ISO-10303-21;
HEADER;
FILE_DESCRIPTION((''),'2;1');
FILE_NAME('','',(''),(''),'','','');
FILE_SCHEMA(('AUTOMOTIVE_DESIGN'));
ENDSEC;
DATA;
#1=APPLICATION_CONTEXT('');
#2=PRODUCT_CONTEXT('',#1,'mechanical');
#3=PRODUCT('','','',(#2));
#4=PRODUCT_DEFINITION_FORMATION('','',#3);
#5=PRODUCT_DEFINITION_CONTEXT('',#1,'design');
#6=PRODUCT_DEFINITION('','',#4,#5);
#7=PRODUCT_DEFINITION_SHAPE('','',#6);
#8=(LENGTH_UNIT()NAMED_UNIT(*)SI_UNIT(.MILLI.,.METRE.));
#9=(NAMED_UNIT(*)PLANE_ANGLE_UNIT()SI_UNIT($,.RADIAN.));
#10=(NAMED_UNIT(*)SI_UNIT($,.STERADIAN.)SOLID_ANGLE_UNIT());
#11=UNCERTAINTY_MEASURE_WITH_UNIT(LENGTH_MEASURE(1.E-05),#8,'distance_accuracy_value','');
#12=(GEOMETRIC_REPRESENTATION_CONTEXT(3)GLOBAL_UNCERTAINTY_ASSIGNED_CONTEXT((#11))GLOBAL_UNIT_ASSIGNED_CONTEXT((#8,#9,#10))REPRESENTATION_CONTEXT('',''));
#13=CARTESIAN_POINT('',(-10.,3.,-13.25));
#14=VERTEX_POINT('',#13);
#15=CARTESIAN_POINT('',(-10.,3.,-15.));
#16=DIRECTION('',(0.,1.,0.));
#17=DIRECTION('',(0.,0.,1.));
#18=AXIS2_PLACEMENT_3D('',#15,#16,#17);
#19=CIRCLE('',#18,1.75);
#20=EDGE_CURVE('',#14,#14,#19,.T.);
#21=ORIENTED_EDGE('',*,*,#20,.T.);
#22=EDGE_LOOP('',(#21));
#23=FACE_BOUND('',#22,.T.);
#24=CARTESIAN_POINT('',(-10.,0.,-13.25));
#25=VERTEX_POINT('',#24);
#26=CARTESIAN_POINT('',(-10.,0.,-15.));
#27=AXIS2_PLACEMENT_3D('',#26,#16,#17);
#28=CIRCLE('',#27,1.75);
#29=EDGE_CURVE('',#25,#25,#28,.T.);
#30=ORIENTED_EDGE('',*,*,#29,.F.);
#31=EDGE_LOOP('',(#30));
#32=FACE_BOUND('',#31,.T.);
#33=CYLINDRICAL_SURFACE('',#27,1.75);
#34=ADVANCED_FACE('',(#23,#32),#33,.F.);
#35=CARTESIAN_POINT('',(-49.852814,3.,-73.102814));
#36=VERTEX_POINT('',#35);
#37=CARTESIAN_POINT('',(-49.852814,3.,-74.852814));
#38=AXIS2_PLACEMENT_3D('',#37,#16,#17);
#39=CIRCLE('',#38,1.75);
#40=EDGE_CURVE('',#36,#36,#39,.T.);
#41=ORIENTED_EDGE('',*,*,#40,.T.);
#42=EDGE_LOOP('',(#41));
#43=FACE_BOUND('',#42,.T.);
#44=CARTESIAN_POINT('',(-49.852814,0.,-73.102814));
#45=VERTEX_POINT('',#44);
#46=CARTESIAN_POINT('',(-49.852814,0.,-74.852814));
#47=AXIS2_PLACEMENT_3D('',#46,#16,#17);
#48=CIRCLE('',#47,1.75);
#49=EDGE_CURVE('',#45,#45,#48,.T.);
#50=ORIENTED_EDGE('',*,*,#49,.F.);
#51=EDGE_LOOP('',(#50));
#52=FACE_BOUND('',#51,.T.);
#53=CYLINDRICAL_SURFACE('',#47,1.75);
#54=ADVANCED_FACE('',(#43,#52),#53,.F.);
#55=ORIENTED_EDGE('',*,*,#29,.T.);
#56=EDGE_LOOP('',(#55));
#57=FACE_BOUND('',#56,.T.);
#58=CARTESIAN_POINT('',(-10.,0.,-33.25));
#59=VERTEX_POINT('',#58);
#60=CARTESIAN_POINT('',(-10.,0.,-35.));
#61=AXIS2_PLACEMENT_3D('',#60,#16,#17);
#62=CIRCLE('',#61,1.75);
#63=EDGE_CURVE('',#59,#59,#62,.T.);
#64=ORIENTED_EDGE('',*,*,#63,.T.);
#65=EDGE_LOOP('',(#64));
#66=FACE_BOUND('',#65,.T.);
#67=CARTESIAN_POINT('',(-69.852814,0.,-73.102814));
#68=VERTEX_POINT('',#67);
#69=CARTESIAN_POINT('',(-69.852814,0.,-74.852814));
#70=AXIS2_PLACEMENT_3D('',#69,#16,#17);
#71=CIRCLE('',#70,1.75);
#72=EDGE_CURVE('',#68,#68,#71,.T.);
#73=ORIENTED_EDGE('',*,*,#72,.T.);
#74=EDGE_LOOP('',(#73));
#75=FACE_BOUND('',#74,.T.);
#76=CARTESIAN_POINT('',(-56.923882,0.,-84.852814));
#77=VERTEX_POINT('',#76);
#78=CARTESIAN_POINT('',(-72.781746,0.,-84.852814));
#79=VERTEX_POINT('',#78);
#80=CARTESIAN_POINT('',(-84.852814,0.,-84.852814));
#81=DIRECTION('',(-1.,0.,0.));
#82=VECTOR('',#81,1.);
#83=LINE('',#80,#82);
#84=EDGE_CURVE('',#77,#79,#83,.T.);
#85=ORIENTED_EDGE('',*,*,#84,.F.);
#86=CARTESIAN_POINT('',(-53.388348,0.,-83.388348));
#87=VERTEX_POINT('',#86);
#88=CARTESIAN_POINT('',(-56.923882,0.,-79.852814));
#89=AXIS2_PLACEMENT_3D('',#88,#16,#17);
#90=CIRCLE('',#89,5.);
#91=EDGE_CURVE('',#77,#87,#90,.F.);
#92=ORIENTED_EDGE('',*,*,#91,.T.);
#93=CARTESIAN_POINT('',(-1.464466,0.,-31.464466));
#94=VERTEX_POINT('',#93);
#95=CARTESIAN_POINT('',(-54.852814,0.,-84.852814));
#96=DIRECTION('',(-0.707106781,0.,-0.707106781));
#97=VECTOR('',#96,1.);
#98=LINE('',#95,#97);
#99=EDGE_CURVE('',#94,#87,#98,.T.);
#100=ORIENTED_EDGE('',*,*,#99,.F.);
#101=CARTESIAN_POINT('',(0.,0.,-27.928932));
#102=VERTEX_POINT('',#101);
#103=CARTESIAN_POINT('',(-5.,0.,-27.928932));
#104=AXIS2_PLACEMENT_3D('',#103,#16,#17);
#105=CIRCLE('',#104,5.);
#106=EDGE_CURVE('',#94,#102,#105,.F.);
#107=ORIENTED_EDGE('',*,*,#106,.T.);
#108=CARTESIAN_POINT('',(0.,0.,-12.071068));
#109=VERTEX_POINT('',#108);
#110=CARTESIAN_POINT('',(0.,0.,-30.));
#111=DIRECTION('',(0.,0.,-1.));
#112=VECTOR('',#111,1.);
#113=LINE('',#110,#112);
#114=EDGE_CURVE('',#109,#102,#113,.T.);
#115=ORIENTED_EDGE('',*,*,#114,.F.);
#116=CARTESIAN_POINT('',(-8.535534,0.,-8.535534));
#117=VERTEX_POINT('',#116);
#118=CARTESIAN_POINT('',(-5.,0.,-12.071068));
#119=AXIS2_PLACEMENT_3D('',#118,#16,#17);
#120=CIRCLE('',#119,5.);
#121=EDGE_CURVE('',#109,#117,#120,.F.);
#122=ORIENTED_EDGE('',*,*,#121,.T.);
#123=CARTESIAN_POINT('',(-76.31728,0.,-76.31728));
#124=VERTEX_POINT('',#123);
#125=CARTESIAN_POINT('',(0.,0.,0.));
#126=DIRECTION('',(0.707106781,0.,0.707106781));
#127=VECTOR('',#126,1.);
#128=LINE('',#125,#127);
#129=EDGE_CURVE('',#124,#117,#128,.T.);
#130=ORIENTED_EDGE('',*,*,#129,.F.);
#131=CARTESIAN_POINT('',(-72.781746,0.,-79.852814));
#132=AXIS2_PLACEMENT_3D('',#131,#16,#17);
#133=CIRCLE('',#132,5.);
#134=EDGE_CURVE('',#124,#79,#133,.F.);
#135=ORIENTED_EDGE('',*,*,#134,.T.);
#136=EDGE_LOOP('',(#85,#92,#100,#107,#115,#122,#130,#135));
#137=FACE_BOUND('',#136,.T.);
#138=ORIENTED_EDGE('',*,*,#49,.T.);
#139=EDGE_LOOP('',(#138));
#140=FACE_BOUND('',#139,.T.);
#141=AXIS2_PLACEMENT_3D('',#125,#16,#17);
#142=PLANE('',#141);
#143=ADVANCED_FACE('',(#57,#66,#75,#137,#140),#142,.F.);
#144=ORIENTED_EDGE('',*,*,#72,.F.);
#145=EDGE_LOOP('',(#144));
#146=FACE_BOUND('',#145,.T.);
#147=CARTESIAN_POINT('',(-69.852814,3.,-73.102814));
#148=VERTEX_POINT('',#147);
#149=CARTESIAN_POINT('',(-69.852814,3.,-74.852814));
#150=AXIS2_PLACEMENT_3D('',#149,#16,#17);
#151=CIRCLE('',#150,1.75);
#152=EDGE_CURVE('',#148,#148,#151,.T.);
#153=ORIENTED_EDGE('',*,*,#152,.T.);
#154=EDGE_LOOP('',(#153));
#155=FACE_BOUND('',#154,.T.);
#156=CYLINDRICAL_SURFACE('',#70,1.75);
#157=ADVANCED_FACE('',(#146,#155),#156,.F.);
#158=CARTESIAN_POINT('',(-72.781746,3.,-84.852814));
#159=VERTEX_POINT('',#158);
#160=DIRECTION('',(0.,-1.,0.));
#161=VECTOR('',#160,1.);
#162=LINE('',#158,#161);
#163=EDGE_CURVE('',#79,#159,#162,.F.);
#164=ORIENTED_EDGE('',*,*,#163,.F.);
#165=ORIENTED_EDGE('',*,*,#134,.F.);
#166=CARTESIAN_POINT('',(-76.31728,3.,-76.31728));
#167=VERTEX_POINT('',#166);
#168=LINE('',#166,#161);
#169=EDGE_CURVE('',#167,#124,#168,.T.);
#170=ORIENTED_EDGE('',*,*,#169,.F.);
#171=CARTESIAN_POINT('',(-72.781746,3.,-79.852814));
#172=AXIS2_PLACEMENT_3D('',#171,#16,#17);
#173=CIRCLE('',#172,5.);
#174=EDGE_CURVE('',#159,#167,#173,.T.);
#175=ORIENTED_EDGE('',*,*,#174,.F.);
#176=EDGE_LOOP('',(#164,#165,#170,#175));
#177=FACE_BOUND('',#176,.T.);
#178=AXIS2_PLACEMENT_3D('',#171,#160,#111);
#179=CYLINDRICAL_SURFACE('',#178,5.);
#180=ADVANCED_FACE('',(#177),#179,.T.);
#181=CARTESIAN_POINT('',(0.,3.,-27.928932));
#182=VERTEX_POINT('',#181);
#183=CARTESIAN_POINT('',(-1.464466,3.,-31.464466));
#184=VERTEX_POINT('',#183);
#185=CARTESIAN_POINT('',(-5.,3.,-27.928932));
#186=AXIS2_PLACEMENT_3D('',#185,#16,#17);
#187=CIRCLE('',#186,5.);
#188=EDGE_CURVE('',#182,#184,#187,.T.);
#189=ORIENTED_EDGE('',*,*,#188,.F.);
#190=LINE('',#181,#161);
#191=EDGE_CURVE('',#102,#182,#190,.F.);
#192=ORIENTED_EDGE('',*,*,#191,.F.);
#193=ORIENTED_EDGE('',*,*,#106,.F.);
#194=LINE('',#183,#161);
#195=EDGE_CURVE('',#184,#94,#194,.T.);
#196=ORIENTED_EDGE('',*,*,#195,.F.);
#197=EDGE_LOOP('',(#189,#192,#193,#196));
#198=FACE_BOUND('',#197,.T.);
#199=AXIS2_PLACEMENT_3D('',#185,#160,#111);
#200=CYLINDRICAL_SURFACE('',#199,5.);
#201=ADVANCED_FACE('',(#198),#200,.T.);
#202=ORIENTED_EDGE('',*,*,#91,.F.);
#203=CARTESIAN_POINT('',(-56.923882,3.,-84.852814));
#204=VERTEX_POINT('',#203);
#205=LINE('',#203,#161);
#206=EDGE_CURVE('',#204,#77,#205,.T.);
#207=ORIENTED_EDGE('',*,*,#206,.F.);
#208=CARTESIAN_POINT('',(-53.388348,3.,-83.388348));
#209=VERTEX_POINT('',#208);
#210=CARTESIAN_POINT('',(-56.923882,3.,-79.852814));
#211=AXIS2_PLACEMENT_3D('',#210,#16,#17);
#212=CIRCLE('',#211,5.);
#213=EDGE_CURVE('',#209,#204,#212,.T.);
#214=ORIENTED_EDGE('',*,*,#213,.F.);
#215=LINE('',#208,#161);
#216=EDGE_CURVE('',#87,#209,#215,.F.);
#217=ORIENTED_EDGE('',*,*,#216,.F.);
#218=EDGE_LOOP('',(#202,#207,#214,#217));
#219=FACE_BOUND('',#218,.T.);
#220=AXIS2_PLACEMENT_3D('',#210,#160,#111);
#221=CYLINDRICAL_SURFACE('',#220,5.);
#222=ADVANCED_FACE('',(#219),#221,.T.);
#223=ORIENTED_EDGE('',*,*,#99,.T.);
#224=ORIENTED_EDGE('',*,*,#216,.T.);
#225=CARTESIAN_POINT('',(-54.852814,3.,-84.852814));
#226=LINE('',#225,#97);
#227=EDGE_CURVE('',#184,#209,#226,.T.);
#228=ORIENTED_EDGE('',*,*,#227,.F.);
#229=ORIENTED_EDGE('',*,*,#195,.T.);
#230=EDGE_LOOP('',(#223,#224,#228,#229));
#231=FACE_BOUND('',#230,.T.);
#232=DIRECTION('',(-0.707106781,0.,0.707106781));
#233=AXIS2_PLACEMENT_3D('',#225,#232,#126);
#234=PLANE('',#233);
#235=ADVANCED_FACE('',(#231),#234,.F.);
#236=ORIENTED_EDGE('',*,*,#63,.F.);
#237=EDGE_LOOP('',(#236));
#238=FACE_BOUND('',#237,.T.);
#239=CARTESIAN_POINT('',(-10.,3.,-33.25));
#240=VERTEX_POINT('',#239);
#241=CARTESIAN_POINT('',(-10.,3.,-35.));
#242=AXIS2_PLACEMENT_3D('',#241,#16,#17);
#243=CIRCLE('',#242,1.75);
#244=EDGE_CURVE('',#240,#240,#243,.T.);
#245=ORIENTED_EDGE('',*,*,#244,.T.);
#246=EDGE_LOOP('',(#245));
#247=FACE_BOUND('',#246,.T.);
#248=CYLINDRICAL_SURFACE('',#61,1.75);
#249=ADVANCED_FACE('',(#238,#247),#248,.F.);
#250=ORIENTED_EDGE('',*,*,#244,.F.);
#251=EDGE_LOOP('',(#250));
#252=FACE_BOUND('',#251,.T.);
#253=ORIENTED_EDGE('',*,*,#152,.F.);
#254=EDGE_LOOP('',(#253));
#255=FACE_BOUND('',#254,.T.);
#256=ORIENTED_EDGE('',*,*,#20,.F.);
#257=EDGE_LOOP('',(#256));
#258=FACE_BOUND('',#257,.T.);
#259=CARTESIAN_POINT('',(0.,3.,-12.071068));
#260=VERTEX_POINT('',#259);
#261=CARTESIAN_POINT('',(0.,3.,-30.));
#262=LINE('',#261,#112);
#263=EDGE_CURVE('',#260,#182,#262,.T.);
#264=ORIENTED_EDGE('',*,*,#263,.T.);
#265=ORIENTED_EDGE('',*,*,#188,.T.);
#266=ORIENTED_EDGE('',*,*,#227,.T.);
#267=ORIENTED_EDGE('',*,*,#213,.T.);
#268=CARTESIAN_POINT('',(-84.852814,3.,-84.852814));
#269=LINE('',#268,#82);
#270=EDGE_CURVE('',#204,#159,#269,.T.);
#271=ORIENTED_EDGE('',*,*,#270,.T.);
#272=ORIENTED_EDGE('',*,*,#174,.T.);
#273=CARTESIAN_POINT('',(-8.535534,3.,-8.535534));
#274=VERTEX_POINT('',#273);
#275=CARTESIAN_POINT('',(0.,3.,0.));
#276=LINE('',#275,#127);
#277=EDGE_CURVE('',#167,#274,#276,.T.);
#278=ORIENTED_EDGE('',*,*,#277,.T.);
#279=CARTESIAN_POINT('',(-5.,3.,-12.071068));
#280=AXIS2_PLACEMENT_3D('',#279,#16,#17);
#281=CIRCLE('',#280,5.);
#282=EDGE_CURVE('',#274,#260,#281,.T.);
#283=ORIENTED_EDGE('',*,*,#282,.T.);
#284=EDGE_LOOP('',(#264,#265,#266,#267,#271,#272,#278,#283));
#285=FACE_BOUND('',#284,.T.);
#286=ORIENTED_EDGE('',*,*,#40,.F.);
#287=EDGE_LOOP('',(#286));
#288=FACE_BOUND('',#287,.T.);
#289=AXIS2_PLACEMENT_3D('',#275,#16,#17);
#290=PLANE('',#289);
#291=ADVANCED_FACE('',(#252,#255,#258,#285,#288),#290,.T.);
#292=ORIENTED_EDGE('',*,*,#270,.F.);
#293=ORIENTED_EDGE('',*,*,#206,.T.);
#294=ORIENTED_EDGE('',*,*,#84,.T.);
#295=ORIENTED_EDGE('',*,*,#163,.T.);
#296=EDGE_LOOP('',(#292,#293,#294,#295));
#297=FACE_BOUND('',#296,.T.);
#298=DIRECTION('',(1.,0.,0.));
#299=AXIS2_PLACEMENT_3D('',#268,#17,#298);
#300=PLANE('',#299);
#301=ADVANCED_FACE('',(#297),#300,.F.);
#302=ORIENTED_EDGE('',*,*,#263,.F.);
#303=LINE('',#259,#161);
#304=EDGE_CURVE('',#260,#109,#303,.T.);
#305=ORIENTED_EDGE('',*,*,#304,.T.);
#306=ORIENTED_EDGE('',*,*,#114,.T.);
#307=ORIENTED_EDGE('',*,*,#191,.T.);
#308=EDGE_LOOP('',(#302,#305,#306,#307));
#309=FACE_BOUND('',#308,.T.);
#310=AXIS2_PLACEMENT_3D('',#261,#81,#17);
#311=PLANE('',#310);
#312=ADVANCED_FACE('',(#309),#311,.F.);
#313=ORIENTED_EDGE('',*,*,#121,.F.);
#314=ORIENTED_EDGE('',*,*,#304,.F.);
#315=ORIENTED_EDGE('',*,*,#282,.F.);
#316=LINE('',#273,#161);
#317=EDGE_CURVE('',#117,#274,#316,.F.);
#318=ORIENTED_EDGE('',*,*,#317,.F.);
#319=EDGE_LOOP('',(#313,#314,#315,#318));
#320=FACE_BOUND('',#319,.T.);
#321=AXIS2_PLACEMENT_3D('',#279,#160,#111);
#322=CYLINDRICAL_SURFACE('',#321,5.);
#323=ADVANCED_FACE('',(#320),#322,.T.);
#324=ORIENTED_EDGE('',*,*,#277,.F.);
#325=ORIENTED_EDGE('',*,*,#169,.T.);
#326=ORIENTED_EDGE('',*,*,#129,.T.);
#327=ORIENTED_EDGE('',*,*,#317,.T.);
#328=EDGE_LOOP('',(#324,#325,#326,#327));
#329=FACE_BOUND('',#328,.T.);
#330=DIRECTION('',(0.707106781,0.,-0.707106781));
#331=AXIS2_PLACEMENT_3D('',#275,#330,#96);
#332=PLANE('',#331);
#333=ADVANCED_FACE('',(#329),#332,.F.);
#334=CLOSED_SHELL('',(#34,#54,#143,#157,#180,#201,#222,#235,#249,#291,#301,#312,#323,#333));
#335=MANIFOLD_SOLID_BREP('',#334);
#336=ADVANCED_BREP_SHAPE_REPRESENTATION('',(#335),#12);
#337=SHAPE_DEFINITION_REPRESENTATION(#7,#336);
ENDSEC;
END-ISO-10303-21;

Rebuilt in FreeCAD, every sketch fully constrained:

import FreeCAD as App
import Part
import Sketcher
from FreeCAD import Vector


def edges_at(feature, points):
    """Names of the edges that pass closest to the given points."""
    edges = feature.Shape.Edges
    near = lambda p: min(range(len(edges)), key=lambda i: edges[i].distToShape(Part.Vertex(*p))[0])
    return sorted({f"Edge{near(p) + 1}" for p in points})

doc = App.newDocument("Part")
body = doc.addObject("PartDesign::Body", "Body")

sketch1 = doc.addObject("Sketcher::SketchObject", "Sketch")
body.addObject(sketch1)
sketch1.AttachmentSupport = (doc.XZ_Plane, [""])
sketch1.MapMode = "FlatFace"
sketch1.addGeometry(Part.LineSegment(Vector(-84.852814, -84.852814, 0), Vector(0, 0, 0)), False)
sketch1.addGeometry(Part.LineSegment(Vector(0, 0, 0), Vector(0, -30, 0)), False)
sketch1.addGeometry(Part.LineSegment(Vector(0, -30, 0), Vector(-54.852814, -84.852814, 0)), False)
sketch1.addGeometry(Part.LineSegment(Vector(-54.852814, -84.852814, 0), Vector(-84.852814, -84.852814, 0)), False)
sketch1.addConstraint(Sketcher.Constraint("Coincident", 0, 2, 1, 1))
sketch1.addConstraint(Sketcher.Constraint("Coincident", 1, 2, 2, 1))
sketch1.addConstraint(Sketcher.Constraint("Coincident", 2, 2, 3, 1))
sketch1.addConstraint(Sketcher.Constraint("Coincident", 3, 2, 0, 1))
sketch1.addConstraint(Sketcher.Constraint("Vertical", 1))
sketch1.addConstraint(Sketcher.Constraint("Horizontal", 3))
sketch1.addConstraint(Sketcher.Constraint("Coincident", 0, 2, -1, 1))
sketch1.addConstraint(Sketcher.Constraint("Parallel", 0, 2))
sketch1.addConstraint(Sketcher.Constraint("Equal", 3, 1))
sketch1.addConstraint(Sketcher.Constraint("DistanceX", 3, 2, 3, 1, 30.0))
sketch1.addConstraint(Sketcher.Constraint("Distance", 0, 120.0))
pad1 = doc.addObject("PartDesign::Pad", "Pad")
body.addObject(pad1)
pad1.Profile = sketch1
pad1.Length = 3
pad1.Reversed = True

sketch2 = doc.addObject("Sketcher::SketchObject", "Sketch001")
body.addObject(sketch2)
sketch2.AttachmentSupport = (doc.XZ_Plane, [""])
sketch2.MapMode = "FlatFace"
sketch2.AttachmentOffset = App.Placement(Vector(0, 0, -3), App.Rotation())
sketch2.addGeometry(Part.Circle(Vector(-69.852814, -74.852814, 0), Vector(0, 0, 1), 1.75), False)
sketch2.addGeometry(Part.Circle(Vector(-49.852814, -74.852814, 0), Vector(0, 0, 1), 1.75), False)
sketch2.addGeometry(Part.Circle(Vector(-10, -15, 0), Vector(0, 0, 1), 1.75), False)
sketch2.addGeometry(Part.Circle(Vector(-10, -35, 0), Vector(0, 0, 1), 1.75), False)
sketch2.addConstraint(Sketcher.Constraint("Equal", 0, 1))
sketch2.addConstraint(Sketcher.Constraint("Equal", 1, 2))
sketch2.addConstraint(Sketcher.Constraint("Equal", 2, 3))
sketch2.addConstraint(Sketcher.Constraint("Horizontal", 0, 3, 1, 3))
sketch2.addConstraint(Sketcher.Constraint("Vertical", 2, 3, 3, 3))
sketch2.addConstraint(Sketcher.Constraint("Diameter", 0, 3.5))
sketch2.addConstraint(Sketcher.Constraint("DistanceX", 2, 3, -1, 1, 10.0))
sketch2.addConstraint(Sketcher.Constraint("DistanceY", 2, 3, -1, 1, 15.0))
sketch2.addConstraint(Sketcher.Constraint("DistanceY", 3, 3, -1, 1, 35.0))
sketch2.addConstraint(Sketcher.Constraint("DistanceX", 0, 3, 1, 3, 20.0))
sketch2.addConstraint(Sketcher.Constraint("DistanceX", 0, 3, -1, 1, 69.852814))
sketch2.addConstraint(Sketcher.Constraint("DistanceY", 0, 3, -1, 1, 74.852814))
pocket1 = doc.addObject("PartDesign::Pocket", "Pocket")
body.addObject(pocket1)
pocket1.Profile = sketch2
pocket1.Type = "ThroughAll"
pocket1.Reversed = True
doc.recompute()

fillet = doc.addObject("PartDesign::Fillet", "Fillet")
body.addObject(fillet)
fillet.Base = (pocket1, edges_at(pocket1, [
    (0, 1.5, 0),
    (-84.853, 1.5, -84.853),
    (-54.853, 1.5, -84.853),
    (0, 1.5, -30),
]))
fillet.Radius = 5

doc.recompute()
